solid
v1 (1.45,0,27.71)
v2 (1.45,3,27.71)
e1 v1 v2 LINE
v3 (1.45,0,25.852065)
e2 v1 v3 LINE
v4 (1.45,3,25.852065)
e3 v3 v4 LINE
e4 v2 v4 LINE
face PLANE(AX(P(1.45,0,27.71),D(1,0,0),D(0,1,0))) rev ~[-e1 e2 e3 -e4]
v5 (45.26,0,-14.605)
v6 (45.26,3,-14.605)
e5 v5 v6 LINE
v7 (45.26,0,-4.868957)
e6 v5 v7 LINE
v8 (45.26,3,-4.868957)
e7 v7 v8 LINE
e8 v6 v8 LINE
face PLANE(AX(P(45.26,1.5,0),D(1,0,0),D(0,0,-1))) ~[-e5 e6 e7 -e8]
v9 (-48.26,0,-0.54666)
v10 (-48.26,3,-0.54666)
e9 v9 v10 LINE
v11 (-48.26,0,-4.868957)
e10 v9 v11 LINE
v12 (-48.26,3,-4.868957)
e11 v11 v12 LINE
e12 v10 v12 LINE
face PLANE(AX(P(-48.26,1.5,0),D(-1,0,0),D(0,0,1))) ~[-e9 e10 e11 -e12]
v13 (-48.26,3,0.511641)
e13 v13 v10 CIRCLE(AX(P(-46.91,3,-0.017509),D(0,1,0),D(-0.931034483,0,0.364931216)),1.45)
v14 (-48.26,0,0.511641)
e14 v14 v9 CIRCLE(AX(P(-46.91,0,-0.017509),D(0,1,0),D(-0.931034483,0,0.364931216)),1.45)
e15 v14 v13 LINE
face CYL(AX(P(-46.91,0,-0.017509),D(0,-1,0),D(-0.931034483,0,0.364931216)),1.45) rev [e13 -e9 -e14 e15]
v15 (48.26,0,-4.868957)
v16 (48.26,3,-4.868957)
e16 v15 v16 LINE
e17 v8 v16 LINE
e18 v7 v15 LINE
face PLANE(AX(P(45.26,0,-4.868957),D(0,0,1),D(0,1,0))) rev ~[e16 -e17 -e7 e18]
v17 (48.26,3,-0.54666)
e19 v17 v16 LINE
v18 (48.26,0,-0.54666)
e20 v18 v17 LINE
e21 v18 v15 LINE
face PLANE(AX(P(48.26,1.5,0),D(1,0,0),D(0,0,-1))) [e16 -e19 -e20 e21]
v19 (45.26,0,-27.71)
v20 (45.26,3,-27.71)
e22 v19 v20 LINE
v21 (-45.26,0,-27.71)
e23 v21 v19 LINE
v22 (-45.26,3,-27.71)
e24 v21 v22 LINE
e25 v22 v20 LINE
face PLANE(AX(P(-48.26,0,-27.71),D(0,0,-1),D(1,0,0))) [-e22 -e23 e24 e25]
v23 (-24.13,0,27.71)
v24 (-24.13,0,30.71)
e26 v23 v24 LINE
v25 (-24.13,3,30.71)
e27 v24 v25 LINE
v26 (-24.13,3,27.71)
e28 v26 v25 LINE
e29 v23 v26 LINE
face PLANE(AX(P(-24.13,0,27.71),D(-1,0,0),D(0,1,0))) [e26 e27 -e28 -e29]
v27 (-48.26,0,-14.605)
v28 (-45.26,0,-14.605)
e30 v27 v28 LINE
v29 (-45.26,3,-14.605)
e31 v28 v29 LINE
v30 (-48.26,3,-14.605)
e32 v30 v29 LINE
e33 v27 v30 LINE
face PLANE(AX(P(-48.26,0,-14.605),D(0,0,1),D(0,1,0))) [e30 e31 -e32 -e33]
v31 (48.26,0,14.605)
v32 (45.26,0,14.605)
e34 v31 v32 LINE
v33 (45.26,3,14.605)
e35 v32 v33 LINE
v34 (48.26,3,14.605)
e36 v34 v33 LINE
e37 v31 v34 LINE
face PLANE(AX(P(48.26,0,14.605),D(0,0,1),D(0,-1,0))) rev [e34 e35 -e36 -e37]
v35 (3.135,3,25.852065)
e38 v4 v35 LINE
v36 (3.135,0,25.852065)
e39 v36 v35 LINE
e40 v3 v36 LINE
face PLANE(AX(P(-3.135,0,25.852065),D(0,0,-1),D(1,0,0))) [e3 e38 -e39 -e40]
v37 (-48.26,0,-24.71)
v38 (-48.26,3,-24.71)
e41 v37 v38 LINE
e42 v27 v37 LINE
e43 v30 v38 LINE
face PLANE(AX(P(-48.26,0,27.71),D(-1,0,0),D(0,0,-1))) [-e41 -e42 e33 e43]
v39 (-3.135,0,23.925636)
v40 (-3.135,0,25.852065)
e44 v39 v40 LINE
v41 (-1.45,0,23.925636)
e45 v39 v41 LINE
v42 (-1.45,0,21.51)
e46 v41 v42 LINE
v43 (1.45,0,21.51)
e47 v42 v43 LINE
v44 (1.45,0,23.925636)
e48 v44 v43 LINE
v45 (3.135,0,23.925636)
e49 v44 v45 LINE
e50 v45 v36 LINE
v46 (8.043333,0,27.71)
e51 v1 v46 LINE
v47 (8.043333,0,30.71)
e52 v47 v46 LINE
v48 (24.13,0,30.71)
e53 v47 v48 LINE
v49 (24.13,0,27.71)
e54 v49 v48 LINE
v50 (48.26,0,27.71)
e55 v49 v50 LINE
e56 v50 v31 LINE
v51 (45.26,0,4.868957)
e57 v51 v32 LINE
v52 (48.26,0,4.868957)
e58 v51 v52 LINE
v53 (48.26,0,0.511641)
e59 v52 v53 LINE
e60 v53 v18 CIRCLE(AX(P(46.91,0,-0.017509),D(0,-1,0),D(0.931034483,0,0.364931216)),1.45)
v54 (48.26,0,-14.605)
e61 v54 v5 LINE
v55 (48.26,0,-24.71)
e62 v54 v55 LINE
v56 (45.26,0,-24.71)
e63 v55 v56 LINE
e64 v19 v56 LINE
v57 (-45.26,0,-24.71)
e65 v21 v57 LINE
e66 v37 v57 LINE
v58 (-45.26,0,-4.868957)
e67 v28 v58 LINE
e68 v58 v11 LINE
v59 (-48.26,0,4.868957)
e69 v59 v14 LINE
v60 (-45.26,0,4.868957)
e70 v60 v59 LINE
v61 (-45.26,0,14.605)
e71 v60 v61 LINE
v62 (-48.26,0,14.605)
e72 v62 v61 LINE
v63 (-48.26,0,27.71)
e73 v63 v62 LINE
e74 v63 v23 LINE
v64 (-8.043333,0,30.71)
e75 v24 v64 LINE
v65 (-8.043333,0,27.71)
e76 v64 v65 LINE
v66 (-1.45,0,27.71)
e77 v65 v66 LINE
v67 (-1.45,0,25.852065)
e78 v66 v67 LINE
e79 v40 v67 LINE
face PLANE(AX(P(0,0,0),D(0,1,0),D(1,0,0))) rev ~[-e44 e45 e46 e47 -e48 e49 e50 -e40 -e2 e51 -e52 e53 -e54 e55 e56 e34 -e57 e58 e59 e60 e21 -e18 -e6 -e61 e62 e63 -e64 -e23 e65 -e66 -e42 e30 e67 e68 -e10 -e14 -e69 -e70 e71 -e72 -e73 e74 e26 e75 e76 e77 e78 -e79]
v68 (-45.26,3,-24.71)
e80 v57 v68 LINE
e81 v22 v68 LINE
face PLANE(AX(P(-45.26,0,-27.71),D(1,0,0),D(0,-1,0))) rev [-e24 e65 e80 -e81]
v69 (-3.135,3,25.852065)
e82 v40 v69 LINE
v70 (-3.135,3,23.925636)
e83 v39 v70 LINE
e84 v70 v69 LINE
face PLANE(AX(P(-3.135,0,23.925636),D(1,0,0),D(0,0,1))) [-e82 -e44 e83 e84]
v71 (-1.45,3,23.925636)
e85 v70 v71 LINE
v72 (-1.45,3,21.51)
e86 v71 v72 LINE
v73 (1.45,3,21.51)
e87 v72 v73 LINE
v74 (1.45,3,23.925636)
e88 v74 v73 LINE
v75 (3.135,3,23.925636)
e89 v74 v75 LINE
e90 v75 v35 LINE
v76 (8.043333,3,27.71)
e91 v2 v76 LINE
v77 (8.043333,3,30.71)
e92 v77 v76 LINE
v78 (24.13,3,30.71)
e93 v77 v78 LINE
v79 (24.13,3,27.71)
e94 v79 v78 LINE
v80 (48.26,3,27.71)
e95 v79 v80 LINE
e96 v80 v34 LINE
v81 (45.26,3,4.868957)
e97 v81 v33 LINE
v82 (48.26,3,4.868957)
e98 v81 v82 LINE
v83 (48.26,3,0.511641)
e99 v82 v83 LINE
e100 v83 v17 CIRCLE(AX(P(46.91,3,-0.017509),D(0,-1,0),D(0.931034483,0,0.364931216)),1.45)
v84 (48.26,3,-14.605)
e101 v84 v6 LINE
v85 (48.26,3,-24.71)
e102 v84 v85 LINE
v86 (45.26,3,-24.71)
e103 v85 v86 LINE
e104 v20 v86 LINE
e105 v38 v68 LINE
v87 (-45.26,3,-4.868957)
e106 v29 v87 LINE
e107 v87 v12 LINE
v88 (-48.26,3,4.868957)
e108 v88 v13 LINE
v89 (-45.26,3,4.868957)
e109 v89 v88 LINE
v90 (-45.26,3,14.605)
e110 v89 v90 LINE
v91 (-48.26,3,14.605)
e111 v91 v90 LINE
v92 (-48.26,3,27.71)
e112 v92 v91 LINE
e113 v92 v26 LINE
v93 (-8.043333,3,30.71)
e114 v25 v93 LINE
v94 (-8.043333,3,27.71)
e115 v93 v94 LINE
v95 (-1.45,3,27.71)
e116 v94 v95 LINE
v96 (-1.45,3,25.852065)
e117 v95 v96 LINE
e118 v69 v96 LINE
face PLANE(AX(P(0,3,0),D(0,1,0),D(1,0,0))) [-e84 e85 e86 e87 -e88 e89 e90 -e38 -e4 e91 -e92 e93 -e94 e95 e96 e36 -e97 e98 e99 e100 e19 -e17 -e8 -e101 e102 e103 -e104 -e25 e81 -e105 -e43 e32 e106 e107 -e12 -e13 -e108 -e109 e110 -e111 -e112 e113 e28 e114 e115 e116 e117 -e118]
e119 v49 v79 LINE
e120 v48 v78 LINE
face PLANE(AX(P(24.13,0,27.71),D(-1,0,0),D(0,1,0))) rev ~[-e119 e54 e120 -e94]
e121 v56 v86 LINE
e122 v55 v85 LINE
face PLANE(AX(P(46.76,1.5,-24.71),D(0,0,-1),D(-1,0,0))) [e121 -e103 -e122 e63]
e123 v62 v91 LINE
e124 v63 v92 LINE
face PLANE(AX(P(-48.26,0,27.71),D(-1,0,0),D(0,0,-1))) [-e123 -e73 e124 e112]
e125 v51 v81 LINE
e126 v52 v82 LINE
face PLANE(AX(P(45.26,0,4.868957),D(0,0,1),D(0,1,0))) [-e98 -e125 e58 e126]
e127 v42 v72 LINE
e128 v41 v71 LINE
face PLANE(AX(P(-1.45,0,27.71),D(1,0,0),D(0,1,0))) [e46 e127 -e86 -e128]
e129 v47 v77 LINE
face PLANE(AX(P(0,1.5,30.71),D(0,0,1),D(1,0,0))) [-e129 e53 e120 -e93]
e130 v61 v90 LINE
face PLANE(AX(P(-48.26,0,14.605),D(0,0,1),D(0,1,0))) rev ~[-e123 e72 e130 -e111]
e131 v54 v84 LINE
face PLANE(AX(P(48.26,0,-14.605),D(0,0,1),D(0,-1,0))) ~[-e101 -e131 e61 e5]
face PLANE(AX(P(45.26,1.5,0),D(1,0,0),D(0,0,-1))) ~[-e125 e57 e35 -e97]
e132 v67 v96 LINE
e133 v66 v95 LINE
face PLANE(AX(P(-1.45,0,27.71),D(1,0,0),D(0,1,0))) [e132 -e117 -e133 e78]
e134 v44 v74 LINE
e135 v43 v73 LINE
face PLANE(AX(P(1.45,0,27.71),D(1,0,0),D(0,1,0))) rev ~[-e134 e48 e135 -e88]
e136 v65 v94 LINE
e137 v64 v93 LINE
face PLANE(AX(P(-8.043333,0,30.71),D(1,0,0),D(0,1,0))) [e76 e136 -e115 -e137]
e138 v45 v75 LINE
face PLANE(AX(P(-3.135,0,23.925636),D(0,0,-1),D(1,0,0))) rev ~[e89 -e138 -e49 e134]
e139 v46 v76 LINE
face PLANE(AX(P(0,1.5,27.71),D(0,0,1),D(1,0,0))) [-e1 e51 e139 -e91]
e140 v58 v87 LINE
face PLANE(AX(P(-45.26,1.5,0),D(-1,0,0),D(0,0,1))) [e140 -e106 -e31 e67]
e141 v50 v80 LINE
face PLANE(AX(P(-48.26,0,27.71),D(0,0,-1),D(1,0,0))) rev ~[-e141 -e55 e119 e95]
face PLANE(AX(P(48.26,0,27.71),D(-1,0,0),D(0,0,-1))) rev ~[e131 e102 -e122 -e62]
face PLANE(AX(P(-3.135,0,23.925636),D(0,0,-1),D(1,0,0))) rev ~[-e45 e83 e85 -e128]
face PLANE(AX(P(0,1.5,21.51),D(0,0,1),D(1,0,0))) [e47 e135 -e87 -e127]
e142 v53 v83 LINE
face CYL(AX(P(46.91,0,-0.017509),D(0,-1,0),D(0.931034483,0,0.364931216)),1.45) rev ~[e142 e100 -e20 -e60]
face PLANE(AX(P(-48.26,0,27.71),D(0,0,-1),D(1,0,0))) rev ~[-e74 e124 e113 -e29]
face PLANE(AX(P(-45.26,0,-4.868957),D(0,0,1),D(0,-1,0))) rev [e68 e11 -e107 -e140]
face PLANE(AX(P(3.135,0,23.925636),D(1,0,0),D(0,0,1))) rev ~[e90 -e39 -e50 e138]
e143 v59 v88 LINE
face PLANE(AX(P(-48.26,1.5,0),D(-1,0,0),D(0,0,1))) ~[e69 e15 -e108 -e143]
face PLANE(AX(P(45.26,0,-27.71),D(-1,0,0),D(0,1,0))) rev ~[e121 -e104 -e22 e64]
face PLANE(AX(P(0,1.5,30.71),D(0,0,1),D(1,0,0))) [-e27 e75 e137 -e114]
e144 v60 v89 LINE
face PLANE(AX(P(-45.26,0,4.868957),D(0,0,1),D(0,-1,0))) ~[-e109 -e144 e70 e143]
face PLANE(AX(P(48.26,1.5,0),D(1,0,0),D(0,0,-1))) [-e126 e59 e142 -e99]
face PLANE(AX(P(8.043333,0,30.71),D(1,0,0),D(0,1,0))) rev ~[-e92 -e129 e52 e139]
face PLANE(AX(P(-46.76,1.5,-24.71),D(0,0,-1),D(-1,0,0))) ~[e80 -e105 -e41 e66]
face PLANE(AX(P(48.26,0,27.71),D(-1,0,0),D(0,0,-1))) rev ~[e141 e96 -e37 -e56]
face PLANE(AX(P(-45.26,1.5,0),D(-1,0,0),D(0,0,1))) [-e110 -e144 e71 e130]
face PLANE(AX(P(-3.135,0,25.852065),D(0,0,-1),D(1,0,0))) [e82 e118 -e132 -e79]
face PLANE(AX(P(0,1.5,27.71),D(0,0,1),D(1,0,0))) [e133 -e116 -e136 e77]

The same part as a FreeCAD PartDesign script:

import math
import FreeCAD as App
import Part
import Sketcher
Q = App.Units.Quantity

doc = App.newDocument("Part")
body = doc.addObject("PartDesign::Body", "Body")

sketch1 = body.newObject("Sketcher::SketchObject", "Sketch")
sketch1.AttachmentSupport = (doc.getObject("XZ_Plane"), [""])
sketch1.MapMode = "FlatFace"
sketch1.addGeometry([
    Part.LineSegment(App.Vector(-48, -28, 0), App.Vector(-48, 28, 0)),
    Part.LineSegment(App.Vector(-48, 28, 0), App.Vector(48, 28, 0)),
    Part.LineSegment(App.Vector(48, 28, 0), App.Vector(48, -28, 0)),
    Part.LineSegment(App.Vector(48, -28, 0), App.Vector(-48, -28, 0)),
], False)
sketch1.addConstraint([
    Sketcher.Constraint("Coincident", 0, 2, 1, 1),
    Sketcher.Constraint("Coincident", 1, 2, 2, 1),
    Sketcher.Constraint("Coincident", 2, 2, 3, 1),
    Sketcher.Constraint("Coincident", 3, 2, 0, 1),
    Sketcher.Constraint("Vertical", 0),
    Sketcher.Constraint("Horizontal", 1),
    Sketcher.Constraint("Vertical", 2),
    Sketcher.Constraint("Horizontal", 3),
    Sketcher.Constraint("Symmetric", 0, 2, 2, 2, -1, 1),
    Sketcher.Constraint("DistanceX", 1, 1, 1, 2, Q("96.52 mm")),
    Sketcher.Constraint("DistanceY", 0, 1, 0, 2, Q("55.42 mm")),
])
pad1 = body.newObject("PartDesign::Pad", "Pad")
pad1.Profile = sketch1
pad1.Length = 3
pad1.Reversed = True

sketch2 = body.newObject("Sketcher::SketchObject", "Sketch001")
sketch2.AttachmentSupport = (doc.getObject("YZ_Plane"), [""])
sketch2.MapMode = "FlatFace"
sketch2.AttachmentOffset = App.Placement(App.Vector(0, 0, -48.26), App.Rotation())
sketch2.addGeometry([
    Part.LineSegment(App.Vector(3, -14.6, 0), App.Vector(0, -14.6, 0)),
    Part.LineSegment(App.Vector(0, -14.6, 0), App.Vector(0, 14.6, 0)),
    Part.LineSegment(App.Vector(0, 14.6, 0), App.Vector(3, 14.6, 0)),
    Part.LineSegment(App.Vector(3, 14.6, 0), App.Vector(3, -14.6, 0)),
], False)
sketch2.addConstraint([
    Sketcher.Constraint("Coincident", 0, 2, 1, 1),
    Sketcher.Constraint("Coincident", 1, 2, 2, 1),
    Sketcher.Constraint("Coincident", 2, 2, 3, 1),
    Sketcher.Constraint("Coincident", 3, 2, 0, 1),
    Sketcher.Constraint("Horizontal", 0),
    Sketcher.Constraint("Vertical", 1),
    Sketcher.Constraint("Horizontal", 2),
    Sketcher.Constraint("Vertical", 3),
    Sketcher.Constraint("Symmetric", 0, 2, 1, 2, -1, 1),
    Sketcher.Constraint("DistanceX", 0, 2, 0, 1, Q("3 mm")),
    Sketcher.Constraint("DistanceY", 1, 1, 1, 2, Q("29.21 mm")),
])
pocket1 = body.newObject("PartDesign::Pocket", "Pocket")
pocket1.Profile = sketch2
pocket1.Length = 3
pocket1.Reversed = True
doc.recompute()

mirrored = body.newObject("PartDesign::Mirrored", "Mirrored")
mirrored.Originals = [pocket1]
mirrored.MirrorPlane = (doc.getObject("YZ_Plane"), [""])
body.Tip = mirrored

sketch3 = body.newObject("Sketcher::SketchObject", "Sketch002")
sketch3.AttachmentSupport = (doc.getObject("XY_Plane"), [""])
sketch3.MapMode = "FlatFace"
sketch3.AttachmentOffset = App.Placement(App.Vector(0, 0, 27.71), App.Rotation())
sketch3.addGeometry([
    Part.LineSegment(App.Vector(-24.1, 3, 0), App.Vector(-24.1, 0, 0)),
    Part.LineSegment(App.Vector(-24.1, 0, 0), App.Vector(24.1, 0, 0)),
    Part.LineSegment(App.Vector(24.1, 0, 0), App.Vector(24.1, 3, 0)),
    Part.LineSegment(App.Vector(24.1, 3, 0), App.Vector(-24.1, 3, 0)),
], False)
sketch3.addConstraint([
    Sketcher.Constraint("Coincident", 0, 2, 1, 1),
    Sketcher.Constraint("Coincident", 1, 2, 2, 1),
    Sketcher.Constraint("Coincident", 2, 2, 3, 1),
    Sketcher.Constraint("Coincident", 3, 2, 0, 1),
    Sketcher.Constraint("Vertical", 0),
    Sketcher.Constraint("Horizontal", 1),
    Sketcher.Constraint("Vertical", 2),
    Sketcher.Constraint("Horizontal", 3),
    Sketcher.Constraint("Symmetric", 0, 2, 1, 2, -1, 1),
    Sketcher.Constraint("DistanceY", 0, 2, 0, 1, Q("3 mm")),
    Sketcher.Constraint("DistanceX", 1, 1, 1, 2, Q("48.26 mm")),
])
pad2 = body.newObject("PartDesign::Pad", "Pad001")
pad2.Profile = sketch3
pad2.Length = 3

sketch4 = body.newObject("Sketcher::SketchObject", "Sketch003")
sketch4.AttachmentSupport = (doc.getObject("XY_Plane"), [""])
sketch4.MapMode = "FlatFace"
sketch4.AttachmentOffset = App.Placement(App.Vector(0, 0, 30.71), App.Rotation())
sketch4.addGeometry([
    Part.LineSegment(App.Vector(-8, 3, 0), App.Vector(-8, 0, 0)),
    Part.LineSegment(App.Vector(-8, 0, 0), App.Vector(8, 0, 0)),
    Part.LineSegment(App.Vector(8, 0, 0), App.Vector(8, 3, 0)),
    Part.LineSegment(App.Vector(8, 3, 0), App.Vector(-8, 3, 0)),
], False)
sketch4.addConstraint([
    Sketcher.Constraint("Coincident", 0, 2, 1, 1),
    Sketcher.Constraint("Coincident", 1, 2, 2, 1),
    Sketcher.Constraint("Coincident", 2, 2, 3, 1),
    Sketcher.Constraint("Coincident", 3, 2, 0, 1),
    Sketcher.Constraint("Vertical", 0),
    Sketcher.Constraint("Horizontal", 1),
    Sketcher.Constraint("Vertical", 2),
    Sketcher.Constraint("Horizontal", 3),
    Sketcher.Constraint("Symmetric", 0, 2, 1, 2, -1, 1),
    Sketcher.Constraint("DistanceY", 0, 2, 0, 1, Q("3 mm")),
    Sketcher.Constraint("DistanceX", 1, 1, 1, 2, Q("16.086667 mm")),
])
pocket2 = body.newObject("PartDesign::Pocket", "Pocket001")
pocket2.Profile = sketch4
pocket2.Length = 3

sketch5 = body.newObject("Sketcher::SketchObject", "Sketch004")
sketch5.AttachmentSupport = (doc.getObject("YZ_Plane"), [""])
sketch5.MapMode = "FlatFace"
sketch5.AttachmentOffset = App.Placement(App.Vector(0, 0, 45.26), App.Rotation())
sketch5.addGeometry([
    Part.LineSegment(App.Vector(3, 4.9, 0), App.Vector(0, 4.9, 0)),
    Part.LineSegment(App.Vector(0, 4.9, 0), App.Vector(0, -4.9, 0)),
    Part.LineSegment(App.Vector(0, -4.9, 0), App.Vector(3, -4.9, 0)),
    Part.LineSegment(App.Vector(3, -4.9, 0), App.Vector(3, 4.9, 0)),
], False)
sketch5.addConstraint([
    Sketcher.Constraint("Coincident", 0, 2, 1, 1),
    Sketcher.Constraint("Coincident", 1, 2, 2, 1),
    Sketcher.Constraint("Coincident", 2, 2, 3, 1),
    Sketcher.Constraint("Coincident", 3, 2, 0, 1),
    Sketcher.Constraint("Horizontal", 0),
    Sketcher.Constraint("Vertical", 1),
    Sketcher.Constraint("Horizontal", 2),
    Sketcher.Constraint("Vertical", 3),
    Sketcher.Constraint("Symmetric", 0, 2, 1, 2, -1, 1),
    Sketcher.Constraint("DistanceX", 0, 2, 0, 1, Q("3 mm")),
    Sketcher.Constraint("DistanceY", 1, 2, 1, 1, Q("9.737913 mm")),
])
pad3 = body.newObject("PartDesign::Pad", "Pad002")
pad3.Profile = sketch5
pad3.Length = 3
doc.recompute()

mirrored2 = body.newObject("PartDesign::Mirrored", "Mirrored001")
mirrored2.Originals = [pad3]
mirrored2.MirrorPlane = (doc.getObject("YZ_Plane"), [""])
body.Tip = mirrored2

sketch6 = body.newObject("Sketcher::SketchObject", "Sketch005")
sketch6.AttachmentSupport = (doc.getObject("XY_Plane"), [""])
sketch6.MapMode = "FlatFace"
sketch6.AttachmentOffset = App.Placement(App.Vector(0, 0, -27.71), App.Rotation())
sketch6.addGeometry([
    Part.LineSegment(App.Vector(48.3, 3, 0), App.Vector(48.3, 0, 0)),
    Part.LineSegment(App.Vector(48.3, 0, 0), App.Vector(45.3, 0, 0)),
    Part.LineSegment(App.Vector(45.3, 0, 0), App.Vector(45.3, 3, 0)),
    Part.LineSegment(App.Vector(45.3, 3, 0), App.Vector(48.3, 3, 0)),
], False)
sketch6.addConstraint([
    Sketcher.Constraint("Coincident", 0, 2, 1, 1),
    Sketcher.Constraint("Coincident", 1, 2, 2, 1),
    Sketcher.Constraint("Coincident", 2, 2, 3, 1),
    Sketcher.Constraint("Coincident", 3, 2, 0, 1),
    Sketcher.Constraint("Vertical", 0),
    Sketcher.Constraint("Horizontal", 1),
    Sketcher.Constraint("Vertical", 2),
    Sketcher.Constraint("Horizontal", 3),
    Sketcher.Constraint("PointOnObject", 0, 2, -1),
    Sketcher.Constraint("Equal", 3, 0),
    Sketcher.Constraint("DistanceX", 1, 2, 1, 1, Q("3 mm")),
    Sketcher.Constraint("DistanceX", -1, 1, 0, 2, Q("48.26 mm")),
])
pocket3 = body.newObject("PartDesign::Pocket", "Pocket002")
pocket3.Profile = sketch6
pocket3.Length = 3
pocket3.Reversed = True
doc.recompute()

mirrored3 = body.newObject("PartDesign::Mirrored", "Mirrored002")
mirrored3.Originals = [pocket3]
mirrored3.MirrorPlane = (doc.getObject("YZ_Plane"), [""])
body.Tip = mirrored3

sketch7 = body.newObject("Sketcher::SketchObject", "Sketch006")
sketch7.AttachmentSupport = (doc.getObject("XZ_Plane"), [""])
sketch7.MapMode = "FlatFace"
sketch7.addGeometry([
    Part.ArcOfCircle(Part.Circle(App.Vector(46.9, 0, 0), App.Vector(0, 0, 1), 1.4), math.radians(-21), math.radians(0)),
    Part.ArcOfCircle(Part.Circle(App.Vector(46.9, 0, 0), App.Vector(0, 0, 1), 1.4), math.radians(0), math.radians(21)),
    Part.ArcOfCircle(Part.Circle(App.Vector(46.9, 0, 0), App.Vector(0, 0, 1), 1.4), math.radians(21), math.radians(339)),
], False)
sketch7.addConstraint([
    Sketcher.Constraint("Tangent", 0, 2, 1, 1),
    Sketcher.Constraint("Tangent", 1, 2, 2, 1),
    Sketcher.Constraint("Tangent", 2, 2, 0, 1),
    Sketcher.Constraint("Horizontal", 2, 3, 0, 2),
    Sketcher.Constraint("Vertical", 1, 2, 2, 2),
    Sketcher.Constraint("Radius", 0, Q("1.45 mm")),
    Sketcher.Constraint("DistanceX", 1, 2, 0, 2, Q("0.1 mm")),
    Sketcher.Constraint("DistanceX", -1, 1, 0, 3, Q("46.91 mm")),
    Sketcher.Constraint("DistanceY", 0, 3, -1, 1, Q("0.017509 mm")),
])
pocket4 = body.newObject("PartDesign::Pocket", "Pocket003")
pocket4.Profile = sketch7
pocket4.Length = 3
doc.recompute()

mirrored4 = body.newObject("PartDesign::Mirrored", "Mirrored003")
mirrored4.Originals = [pocket4]
mirrored4.MirrorPlane = (doc.getObject("YZ_Plane"), [""])
body.Tip = mirrored4

sketch8 = body.newObject("Sketcher::SketchObject", "Sketch007")
sketch8.AttachmentSupport = (doc.getObject("XY_Plane"), [""])
sketch8.MapMode = "FlatFace"
sketch8.AttachmentOffset = App.Placement(App.Vector(0, 0, 27.71), App.Rotation())
sketch8.addGeometry([
    Part.LineSegment(App.Vector(-1.4, 3, 0), App.Vector(-1.4, 0, 0)),
    Part.LineSegment(App.Vector(-1.4, 0, 0), App.Vector(1.4, 0, 0)),
    Part.LineSegment(App.Vector(1.4, 0, 0), App.Vector(1.4, 3, 0)),
    Part.LineSegment(App.Vector(1.4, 3, 0), App.Vector(-1.4, 3, 0)),
], False)
sketch8.addConstraint([
    Sketcher.Constraint("Coincident", 0, 2, 1, 1),
    Sketcher.Constraint("Coincident", 1, 2, 2, 1),
    Sketcher.Constraint("Coincident", 2, 2, 3, 1),
    Sketcher.Constraint("Coincident", 3, 2, 0, 1),
    Sketcher.Constraint("Vertical", 0),
    Sketcher.Constraint("Horizontal", 1),
    Sketcher.Constraint("Vertical", 2),
    Sketcher.Constraint("Horizontal", 3),
    Sketcher.Constraint("Symmetric", 0, 2, 1, 2, -1, 1),
    Sketcher.Constraint("DistanceY", 0, 2, 0, 1, Q("3 mm")),
    Sketcher.Constraint("DistanceX", 1, 1, 1, 2, Q("2.9 mm")),
])
pocket5 = body.newObject("PartDesign::Pocket", "Pocket004")
pocket5.Profile = sketch8
pocket5.Length = 6.2

sketch9 = body.newObject("Sketcher::SketchObject", "Sketch008")
sketch9.AttachmentSupport = (doc.getObject("XZ_Plane"), [""])
sketch9.MapMode = "FlatFace"
sketch9.addGeometry([
    Part.LineSegment(App.Vector(-3.1, 25.9, 0), App.Vector(-3.1, 23.9, 0)),
    Part.LineSegment(App.Vector(-3.1, 23.9, 0), App.Vector(3.1, 23.9, 0)),
    Part.LineSegment(App.Vector(3.1, 23.9, 0), App.Vector(3.1, 25.9, 0)),
    Part.LineSegment(App.Vector(3.1, 25.9, 0), App.Vector(-3.1, 25.9, 0)),
], False)
sketch9.addConstraint([
    Sketcher.Constraint("Coincident", 0, 2, 1, 1),
    Sketcher.Constraint("Coincident", 1, 2, 2, 1),
    Sketcher.Constraint("Coincident", 2, 2, 3, 1),
    Sketcher.Constraint("Coincident", 3, 2, 0, 1),
    Sketcher.Constraint("Vertical", 0),
    Sketcher.Constraint("Horizontal", 1),
    Sketcher.Constraint("Vertical", 2),
    Sketcher.Constraint("Horizontal", 3),
    Sketcher.Constraint("DistanceX", 1, 1, 1, 2, Q("6.27 mm")),
    Sketcher.Constraint("DistanceX", 0, 2, -1, 1, Q("3.135 mm")),
    Sketcher.Constraint("DistanceY", 0, 2, 0, 1, Q("1.926429 mm")),
    Sketcher.Constraint("DistanceY", -1, 1, 0, 2, Q("23.925636 mm")),
])
pocket6 = body.newObject("PartDesign::Pocket", "Pocket005")
pocket6.Profile = sketch9
pocket6.Length = 3

doc.recompute()
